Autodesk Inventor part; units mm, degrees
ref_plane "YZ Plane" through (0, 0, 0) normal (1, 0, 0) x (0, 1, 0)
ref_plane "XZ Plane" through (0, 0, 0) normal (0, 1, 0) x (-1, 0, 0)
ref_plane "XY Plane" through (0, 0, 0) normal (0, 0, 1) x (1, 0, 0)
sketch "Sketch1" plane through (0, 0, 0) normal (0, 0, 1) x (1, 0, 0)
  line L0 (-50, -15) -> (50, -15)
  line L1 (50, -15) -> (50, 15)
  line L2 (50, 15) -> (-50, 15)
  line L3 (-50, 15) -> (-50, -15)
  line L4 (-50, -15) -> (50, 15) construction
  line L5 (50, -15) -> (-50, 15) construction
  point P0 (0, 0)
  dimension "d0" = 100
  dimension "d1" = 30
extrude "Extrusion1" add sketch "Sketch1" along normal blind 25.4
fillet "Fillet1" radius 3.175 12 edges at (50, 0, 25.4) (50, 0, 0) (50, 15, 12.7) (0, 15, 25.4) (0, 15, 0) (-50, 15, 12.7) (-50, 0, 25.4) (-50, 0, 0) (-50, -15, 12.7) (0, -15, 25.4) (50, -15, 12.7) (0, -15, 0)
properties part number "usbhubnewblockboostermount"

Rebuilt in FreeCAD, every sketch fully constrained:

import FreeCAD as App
import Part
import Sketcher

V = App.Vector
Q = App.Units.Quantity


def add_polygon(sketch, points):
    """Adds a closed chain of lines whose ends are joined by coincident constraints."""
    first, n = sketch.GeometryCount, len(points)
    for a, b in zip(points, points[1:] + points[:1]):
        sketch.addGeometry(Part.LineSegment(App.Vector(*a, 0), App.Vector(*b, 0)), False)
    for i in range(n):
        sketch.addConstraint(Sketcher.Constraint("Coincident", first + i, 2, first + (i + 1) % n, 1))

doc = App.newDocument("Part")
body = doc.addObject("PartDesign::Body", "Body")

sketch1 = body.newObject("Sketcher::SketchObject", "Sketch")
sketch1.AttachmentSupport = (doc.getObject("XY_Plane"), [""])
sketch1.MapMode = "FlatFace"
add_polygon(sketch1, [(-50, 15), (-50, -15), (50, -15), (50, 15)])
sketch1.addConstraint([
    Sketcher.Constraint("Vertical", 0),
    Sketcher.Constraint("Horizontal", 1),
    Sketcher.Constraint("Vertical", 2),
    Sketcher.Constraint("Horizontal", 3),
    Sketcher.Constraint("Symmetric", 0, 2, 2, 2, -1, 1),
    Sketcher.Constraint("DistanceX", 1, 1, 1, 2, Q("3.937 in")),
    Sketcher.Constraint("DistanceY", 0, 2, 0, 1, Q("1.1811 in")),
])
pad1 = body.newObject("PartDesign::Pad", "Pad")
pad1.Profile = sketch1
pad1.Length = Q("1 in")
doc.recompute()

fillet = body.newObject("PartDesign::Fillet", "Fillet")
fillet.Base = (pad1, ["Edge1"])
fillet.UseAllEdges = True
fillet.Radius = Q("0.125 in")

doc.recompute()
